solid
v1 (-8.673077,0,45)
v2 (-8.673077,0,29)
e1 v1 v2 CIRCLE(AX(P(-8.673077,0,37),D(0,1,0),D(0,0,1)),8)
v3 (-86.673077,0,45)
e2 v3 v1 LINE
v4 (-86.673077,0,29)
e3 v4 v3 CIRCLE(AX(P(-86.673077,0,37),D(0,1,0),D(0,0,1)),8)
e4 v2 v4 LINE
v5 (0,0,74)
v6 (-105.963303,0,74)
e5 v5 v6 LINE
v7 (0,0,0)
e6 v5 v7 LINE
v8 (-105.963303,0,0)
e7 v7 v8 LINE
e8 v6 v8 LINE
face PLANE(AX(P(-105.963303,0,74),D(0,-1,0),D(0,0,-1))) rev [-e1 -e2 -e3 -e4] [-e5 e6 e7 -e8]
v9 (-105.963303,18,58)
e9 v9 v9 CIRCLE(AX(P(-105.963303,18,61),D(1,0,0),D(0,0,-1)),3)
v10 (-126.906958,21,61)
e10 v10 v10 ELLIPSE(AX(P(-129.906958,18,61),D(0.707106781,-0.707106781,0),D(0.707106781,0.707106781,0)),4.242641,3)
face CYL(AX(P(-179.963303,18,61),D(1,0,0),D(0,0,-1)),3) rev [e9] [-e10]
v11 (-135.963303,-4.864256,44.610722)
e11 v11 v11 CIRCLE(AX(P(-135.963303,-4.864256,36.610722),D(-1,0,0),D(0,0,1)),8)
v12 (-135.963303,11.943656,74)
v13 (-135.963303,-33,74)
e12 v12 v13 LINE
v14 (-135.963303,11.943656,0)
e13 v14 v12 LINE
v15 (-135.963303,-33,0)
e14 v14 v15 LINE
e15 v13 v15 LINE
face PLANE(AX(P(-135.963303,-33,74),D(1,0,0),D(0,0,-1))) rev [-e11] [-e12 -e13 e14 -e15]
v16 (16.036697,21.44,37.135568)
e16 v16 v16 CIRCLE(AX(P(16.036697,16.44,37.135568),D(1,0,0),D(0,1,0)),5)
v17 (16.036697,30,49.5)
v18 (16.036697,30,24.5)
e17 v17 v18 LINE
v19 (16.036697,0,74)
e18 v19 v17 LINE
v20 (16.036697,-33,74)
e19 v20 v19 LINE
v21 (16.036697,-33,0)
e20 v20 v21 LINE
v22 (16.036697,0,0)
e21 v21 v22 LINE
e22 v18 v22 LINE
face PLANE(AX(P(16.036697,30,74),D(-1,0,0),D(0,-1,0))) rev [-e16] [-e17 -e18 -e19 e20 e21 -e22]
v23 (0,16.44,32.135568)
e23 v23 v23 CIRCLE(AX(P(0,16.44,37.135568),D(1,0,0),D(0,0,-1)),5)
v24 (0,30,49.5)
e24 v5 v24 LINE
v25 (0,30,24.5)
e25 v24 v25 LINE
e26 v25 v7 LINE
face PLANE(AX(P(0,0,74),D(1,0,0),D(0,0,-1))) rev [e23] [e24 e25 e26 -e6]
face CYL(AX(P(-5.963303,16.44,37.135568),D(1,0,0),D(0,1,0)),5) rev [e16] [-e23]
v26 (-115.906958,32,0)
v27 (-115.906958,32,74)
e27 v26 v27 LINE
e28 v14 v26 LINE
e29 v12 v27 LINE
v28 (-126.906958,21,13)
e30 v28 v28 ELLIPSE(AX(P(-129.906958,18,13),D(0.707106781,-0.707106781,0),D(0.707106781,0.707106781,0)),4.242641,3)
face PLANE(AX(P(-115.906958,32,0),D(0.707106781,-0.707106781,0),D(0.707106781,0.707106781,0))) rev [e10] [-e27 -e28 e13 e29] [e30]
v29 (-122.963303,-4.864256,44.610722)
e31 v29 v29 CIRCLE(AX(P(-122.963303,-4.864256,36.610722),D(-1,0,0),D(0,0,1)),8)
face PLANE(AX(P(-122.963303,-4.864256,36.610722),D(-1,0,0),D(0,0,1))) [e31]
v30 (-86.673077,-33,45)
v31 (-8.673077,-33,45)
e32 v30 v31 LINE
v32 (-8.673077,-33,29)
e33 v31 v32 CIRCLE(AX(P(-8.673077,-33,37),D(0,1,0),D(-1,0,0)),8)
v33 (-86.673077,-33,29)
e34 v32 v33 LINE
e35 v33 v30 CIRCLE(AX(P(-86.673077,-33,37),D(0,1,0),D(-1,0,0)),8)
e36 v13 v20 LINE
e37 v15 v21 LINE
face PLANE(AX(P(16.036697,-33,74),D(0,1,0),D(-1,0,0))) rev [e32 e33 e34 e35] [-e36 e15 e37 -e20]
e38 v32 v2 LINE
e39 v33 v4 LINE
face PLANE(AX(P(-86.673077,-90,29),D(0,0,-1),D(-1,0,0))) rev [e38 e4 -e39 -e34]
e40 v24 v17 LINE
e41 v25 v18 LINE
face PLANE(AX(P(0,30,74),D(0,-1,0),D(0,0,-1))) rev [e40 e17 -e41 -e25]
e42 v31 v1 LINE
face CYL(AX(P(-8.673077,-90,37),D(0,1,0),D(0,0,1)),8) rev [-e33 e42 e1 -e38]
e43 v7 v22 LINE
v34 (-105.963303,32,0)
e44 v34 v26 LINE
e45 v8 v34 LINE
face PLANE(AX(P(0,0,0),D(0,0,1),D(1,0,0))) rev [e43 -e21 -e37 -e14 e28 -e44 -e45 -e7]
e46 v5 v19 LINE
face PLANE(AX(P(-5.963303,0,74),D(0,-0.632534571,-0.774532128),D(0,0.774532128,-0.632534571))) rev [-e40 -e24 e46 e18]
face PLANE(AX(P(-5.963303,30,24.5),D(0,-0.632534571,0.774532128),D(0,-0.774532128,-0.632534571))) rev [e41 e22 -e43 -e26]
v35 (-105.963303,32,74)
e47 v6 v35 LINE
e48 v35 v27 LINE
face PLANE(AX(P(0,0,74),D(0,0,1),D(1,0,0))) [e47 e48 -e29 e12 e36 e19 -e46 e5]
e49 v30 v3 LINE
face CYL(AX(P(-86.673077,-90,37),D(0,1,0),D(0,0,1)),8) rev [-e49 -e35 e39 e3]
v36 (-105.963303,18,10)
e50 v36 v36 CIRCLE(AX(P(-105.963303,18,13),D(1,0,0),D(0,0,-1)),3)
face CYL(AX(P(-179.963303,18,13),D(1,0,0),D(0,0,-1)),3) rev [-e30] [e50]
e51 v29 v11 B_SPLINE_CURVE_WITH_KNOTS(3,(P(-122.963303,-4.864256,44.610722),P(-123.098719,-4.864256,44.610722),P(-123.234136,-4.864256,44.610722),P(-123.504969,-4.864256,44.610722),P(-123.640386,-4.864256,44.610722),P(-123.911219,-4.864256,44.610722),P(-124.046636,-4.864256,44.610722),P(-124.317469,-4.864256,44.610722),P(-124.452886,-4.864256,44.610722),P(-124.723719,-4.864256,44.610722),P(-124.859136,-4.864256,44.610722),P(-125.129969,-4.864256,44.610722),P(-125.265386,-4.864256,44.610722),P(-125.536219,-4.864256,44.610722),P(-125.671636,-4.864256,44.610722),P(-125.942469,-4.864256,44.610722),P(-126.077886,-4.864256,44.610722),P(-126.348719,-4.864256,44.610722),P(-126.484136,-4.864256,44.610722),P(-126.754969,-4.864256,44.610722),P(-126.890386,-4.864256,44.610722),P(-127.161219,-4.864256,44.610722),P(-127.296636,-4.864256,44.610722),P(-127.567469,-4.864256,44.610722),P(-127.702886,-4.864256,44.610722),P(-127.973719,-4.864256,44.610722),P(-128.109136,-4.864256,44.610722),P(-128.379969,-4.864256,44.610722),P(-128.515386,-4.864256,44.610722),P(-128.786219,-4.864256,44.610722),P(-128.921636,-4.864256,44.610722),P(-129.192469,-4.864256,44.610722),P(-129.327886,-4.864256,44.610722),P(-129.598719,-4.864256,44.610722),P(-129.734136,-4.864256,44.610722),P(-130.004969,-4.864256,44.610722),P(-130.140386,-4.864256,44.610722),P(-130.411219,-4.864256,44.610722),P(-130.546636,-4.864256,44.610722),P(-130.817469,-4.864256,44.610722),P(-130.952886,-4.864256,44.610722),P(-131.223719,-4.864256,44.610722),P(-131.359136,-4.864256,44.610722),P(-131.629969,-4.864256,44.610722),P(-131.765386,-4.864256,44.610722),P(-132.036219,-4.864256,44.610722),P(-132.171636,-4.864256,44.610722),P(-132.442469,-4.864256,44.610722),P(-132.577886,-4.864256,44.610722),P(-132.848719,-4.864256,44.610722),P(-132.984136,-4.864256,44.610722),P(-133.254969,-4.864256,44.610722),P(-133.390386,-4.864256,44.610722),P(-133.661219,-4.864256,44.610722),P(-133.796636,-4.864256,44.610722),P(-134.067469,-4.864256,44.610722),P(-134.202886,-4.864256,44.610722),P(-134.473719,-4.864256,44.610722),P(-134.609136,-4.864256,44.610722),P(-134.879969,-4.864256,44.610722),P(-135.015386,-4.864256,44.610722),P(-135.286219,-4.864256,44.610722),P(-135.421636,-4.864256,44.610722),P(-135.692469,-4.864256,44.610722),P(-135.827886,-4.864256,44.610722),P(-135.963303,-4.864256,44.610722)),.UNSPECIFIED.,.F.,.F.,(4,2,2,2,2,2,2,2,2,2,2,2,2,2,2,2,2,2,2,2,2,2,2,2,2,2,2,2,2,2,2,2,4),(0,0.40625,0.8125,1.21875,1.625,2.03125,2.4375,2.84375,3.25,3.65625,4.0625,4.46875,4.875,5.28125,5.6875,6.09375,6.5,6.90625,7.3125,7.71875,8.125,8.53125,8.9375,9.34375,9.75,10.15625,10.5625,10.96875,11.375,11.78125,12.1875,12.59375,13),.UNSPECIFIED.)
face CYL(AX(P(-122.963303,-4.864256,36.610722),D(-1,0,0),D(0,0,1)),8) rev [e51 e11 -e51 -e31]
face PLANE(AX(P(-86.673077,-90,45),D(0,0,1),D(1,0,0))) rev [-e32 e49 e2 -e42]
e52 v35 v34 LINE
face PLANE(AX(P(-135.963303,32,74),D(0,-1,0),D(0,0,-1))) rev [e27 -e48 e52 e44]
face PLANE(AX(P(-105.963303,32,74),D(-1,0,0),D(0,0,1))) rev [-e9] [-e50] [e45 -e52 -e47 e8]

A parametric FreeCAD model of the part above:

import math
import FreeCAD as App
import Part
import Sketcher
from FreeCAD import Vector


def add_polygon(sketch, points):
    """Adds a closed chain of lines whose ends are joined by coincident constraints."""
    first, n = sketch.GeometryCount, len(points)
    for a, b in zip(points, points[1:] + points[:1]):
        sketch.addGeometry(Part.LineSegment(App.Vector(*a, 0), App.Vector(*b, 0)), False)
    for i in range(n):
        sketch.addConstraint(Sketcher.Constraint("Coincident", first + i, 2, first + (i + 1) % n, 1))

doc = App.newDocument("Part")
body = doc.addObject("PartDesign::Body", "Body")

sketch1 = body.newObject("Sketcher::SketchObject", "Sketch")
sketch1.AttachmentSupport = (doc.getObject("XY_Plane"), [""])
sketch1.MapMode = "FlatFace"
add_polygon(sketch1, [(0, 30), (0, 0), (-106, 0), (-106, 32), (-136, 32), (-136, -33), (16, -33), (16, 30)])
sketch1.addConstraint([
    Sketcher.Constraint("Vertical", 0),
    Sketcher.Constraint("Horizontal", 1),
    Sketcher.Constraint("Vertical", 2),
    Sketcher.Constraint("Horizontal", 3),
    Sketcher.Constraint("Vertical", 4),
    Sketcher.Constraint("Horizontal", 5),
    Sketcher.Constraint("Vertical", 6),
    Sketcher.Constraint("Horizontal", 7),
    Sketcher.Constraint("Coincident", 0, 2, -1, 1),
    Sketcher.Constraint("Equal", 3, 0),
    Sketcher.Constraint("DistanceX", 3, 2, 3, 1, 30.0),
    Sketcher.Constraint("DistanceX", 5, 1, 5, 2, 152.0),
    Sketcher.Constraint("DistanceY", 2, 1, 2, 2, 32.0),
    Sketcher.Constraint("DistanceY", 4, 2, 4, 1, 65.0),
    Sketcher.Constraint("DistanceX", 1, 2, 1, 1, 105.963303),
])
pad1 = body.newObject("PartDesign::Pad", "Pad")
pad1.Profile = sketch1
pad1.Length = 74

sketch2 = body.newObject("Sketcher::SketchObject", "Sketch001")
sketch2.AttachmentSupport = (doc.getObject("XY_Plane"), [""])
sketch2.MapMode = "FlatFace"
sketch2.AttachmentOffset = App.Placement(Vector(0, 0, 74), App.Rotation())
add_polygon(sketch2, [(-136, 32), (-136, 12), (-116, 32)])
sketch2.addConstraint([
    Sketcher.Constraint("Vertical", 0),
    Sketcher.Constraint("Horizontal", 2),
    Sketcher.Constraint("Equal", 2, 0),
    Sketcher.Constraint("DistanceY", -1, 1, 1, 2, 32.0),
    Sketcher.Constraint("DistanceX", 2, 2, 2, 1, 20.056344),
    Sketcher.Constraint("DistanceX", 1, 2, -1, 1, 115.906958),
])
pocket1 = body.newObject("PartDesign::Pocket", "Pocket")
pocket1.Profile = sketch2
pocket1.Length = 74

sketch3 = body.newObject("Sketcher::SketchObject", "Sketch002")
sketch3.AttachmentSupport = (doc.getObject("YZ_Plane"), [""])
sketch3.MapMode = "FlatFace"
sketch3.AttachmentOffset = App.Placement(Vector(0, 0, -105.963303), App.Rotation())
sketch3.addGeometry([
    Part.Circle(Vector(18, 61, 0), Vector(0, 0, 1), 3),
    Part.Circle(Vector(18, 13, 0), Vector(0, 0, 1), 3),
], False)
sketch3.addConstraint([
    Sketcher.Constraint("Equal", 0, 1),
    Sketcher.Constraint("Vertical", 0, 3, 1, 3),
    Sketcher.Constraint("Diameter", 0, 6.0),
    Sketcher.Constraint("DistanceX", -1, 1, 0, 3, 18.0),
    Sketcher.Constraint("DistanceY", -1, 1, 0, 3, 61.0),
    Sketcher.Constraint("DistanceY", -1, 1, 1, 3, 13.0),
])
pocket2 = body.newObject("PartDesign::Pocket", "Pocket001")
pocket2.Profile = sketch3
pocket2.Length = 74

sketch4 = body.newObject("Sketcher::SketchObject", "Sketch003")
sketch4.AttachmentSupport = (doc.getObject("YZ_Plane"), [""])
sketch4.MapMode = "FlatFace"
sketch4.AttachmentOffset = App.Placement(Vector(0, 0, -135.963303), App.Rotation())
sketch4.addGeometry(Part.Circle(Vector(-5, 37, 0), Vector(0, 0, 1), 8), False)
sketch4.addConstraint([
    Sketcher.Constraint("Diameter", 0, 16.0),
    Sketcher.Constraint("DistanceY", -1, 1, 0, 3, 36.610722),
    Sketcher.Constraint("DistanceX", 0, 3, -1, 1, 4.864256),
])
pocket3 = body.newObject("PartDesign::Pocket", "Pocket002")
pocket3.Profile = sketch4
pocket3.Length = 13
pocket3.Reversed = True

sketch5 = body.newObject("Sketcher::SketchObject", "Sketch004")
sketch5.AttachmentSupport = (doc.getObject("XZ_Plane"), [""])
sketch5.MapMode = "FlatFace"
sketch5.addGeometry([
    Part.LineSegment(Vector(-9, 29, 0), Vector(-87, 29, 0)),
    Part.ArcOfCircle(Part.Circle(Vector(-87, 37, 0), Vector(0, 0, 1), 8), math.radians(90), math.radians(270)),
    Part.LineSegment(Vector(-87, 45, 0), Vector(-9, 45, 0)),
    Part.ArcOfCircle(Part.Circle(Vector(-9, 37, 0), Vector(0, 0, 1), 8), math.radians(-90), math.radians(90)),
], False)
sketch5.addConstraint([
    Sketcher.Constraint("Tangent", 0, 2, 1, 2),
    Sketcher.Constraint("Tangent", 1, 1, 2, 1),
    Sketcher.Constraint("Tangent", 2, 2, 3, 2),
    Sketcher.Constraint("Tangent", 3, 1, 0, 1),
    Sketcher.Constraint("Horizontal", 0),
    Sketcher.Constraint("Horizontal", 2),
    Sketcher.Constraint("Radius", 1, 8.0),
    Sketcher.Constraint("DistanceX", 0, 2, 0, 1, 78.0),
    Sketcher.Constraint("DistanceY", -1, 1, 1, 3, 37.0),
    Sketcher.Constraint("DistanceX", 1, 3, -1, 1, 86.673077),
])
pocket4 = body.newObject("PartDesign::Pocket", "Pocket003")
pocket4.Profile = sketch5
pocket4.Length = 90
pocket4.Reversed = True

sketch6 = body.newObject("Sketcher::SketchObject", "Sketch005")
sketch6.AttachmentSupport = (doc.getObject("YZ_Plane"), [""])
sketch6.MapMode = "FlatFace"
sketch6.AttachmentOffset = App.Placement(Vector(0, 0, 16.036697), App.Rotation())
add_polygon(sketch6, [(30, 74), (0, 74), (30, 50)])
add_polygon(sketch6, [(0, 0), (30, 0), (30, 24)])
sketch6.addConstraint([
    Sketcher.Constraint("Horizontal", 0),
    Sketcher.Constraint("Vertical", 2),
    Sketcher.Constraint("Horizontal", 3),
    Sketcher.Constraint("Vertical", 4),
    Sketcher.Constraint("Coincident", 5, 2, -1, 1),
    Sketcher.Constraint("PointOnObject", 0, 2, -2),
    Sketcher.Constraint("Vertical", 2, 2, 3, 2),
    Sketcher.Constraint("Equal", 2, 4),
    Sketcher.Constraint("DistanceX", 0, 2, 0, 1, 30.0),
    Sketcher.Constraint("DistanceY", 2, 1, 2, 2, 24.5),
    Sketcher.Constraint("DistanceY", -1, 1, 0, 2, 74.0),
])
pocket5 = body.newObject("PartDesign::Pocket", "Pocket004")
pocket5.Profile = sketch6
pocket5.Length = 22

sketch7 = body.newObject("Sketcher::SketchObject", "Sketch006")
sketch7.AttachmentSupport = (doc.getObject("YZ_Plane"), [""])
sketch7.MapMode = "FlatFace"
sketch7.AttachmentOffset = App.Placement(Vector(0, 0, 16.036697), App.Rotation())
sketch7.addGeometry(Part.Circle(Vector(16, 37, 0), Vector(0, 0, 1), 5), False)
sketch7.addConstraint([
    Sketcher.Constraint("Diameter", 0, 10.0),
    Sketcher.Constraint("DistanceX", -1, 1, 0, 3, 16.44),
    Sketcher.Constraint("DistanceY", -1, 1, 0, 3, 37.135568),
])
pocket6 = body.newObject("PartDesign::Pocket", "Pocket005")
pocket6.Profile = sketch7
pocket6.Length = 22

doc.recompute()
